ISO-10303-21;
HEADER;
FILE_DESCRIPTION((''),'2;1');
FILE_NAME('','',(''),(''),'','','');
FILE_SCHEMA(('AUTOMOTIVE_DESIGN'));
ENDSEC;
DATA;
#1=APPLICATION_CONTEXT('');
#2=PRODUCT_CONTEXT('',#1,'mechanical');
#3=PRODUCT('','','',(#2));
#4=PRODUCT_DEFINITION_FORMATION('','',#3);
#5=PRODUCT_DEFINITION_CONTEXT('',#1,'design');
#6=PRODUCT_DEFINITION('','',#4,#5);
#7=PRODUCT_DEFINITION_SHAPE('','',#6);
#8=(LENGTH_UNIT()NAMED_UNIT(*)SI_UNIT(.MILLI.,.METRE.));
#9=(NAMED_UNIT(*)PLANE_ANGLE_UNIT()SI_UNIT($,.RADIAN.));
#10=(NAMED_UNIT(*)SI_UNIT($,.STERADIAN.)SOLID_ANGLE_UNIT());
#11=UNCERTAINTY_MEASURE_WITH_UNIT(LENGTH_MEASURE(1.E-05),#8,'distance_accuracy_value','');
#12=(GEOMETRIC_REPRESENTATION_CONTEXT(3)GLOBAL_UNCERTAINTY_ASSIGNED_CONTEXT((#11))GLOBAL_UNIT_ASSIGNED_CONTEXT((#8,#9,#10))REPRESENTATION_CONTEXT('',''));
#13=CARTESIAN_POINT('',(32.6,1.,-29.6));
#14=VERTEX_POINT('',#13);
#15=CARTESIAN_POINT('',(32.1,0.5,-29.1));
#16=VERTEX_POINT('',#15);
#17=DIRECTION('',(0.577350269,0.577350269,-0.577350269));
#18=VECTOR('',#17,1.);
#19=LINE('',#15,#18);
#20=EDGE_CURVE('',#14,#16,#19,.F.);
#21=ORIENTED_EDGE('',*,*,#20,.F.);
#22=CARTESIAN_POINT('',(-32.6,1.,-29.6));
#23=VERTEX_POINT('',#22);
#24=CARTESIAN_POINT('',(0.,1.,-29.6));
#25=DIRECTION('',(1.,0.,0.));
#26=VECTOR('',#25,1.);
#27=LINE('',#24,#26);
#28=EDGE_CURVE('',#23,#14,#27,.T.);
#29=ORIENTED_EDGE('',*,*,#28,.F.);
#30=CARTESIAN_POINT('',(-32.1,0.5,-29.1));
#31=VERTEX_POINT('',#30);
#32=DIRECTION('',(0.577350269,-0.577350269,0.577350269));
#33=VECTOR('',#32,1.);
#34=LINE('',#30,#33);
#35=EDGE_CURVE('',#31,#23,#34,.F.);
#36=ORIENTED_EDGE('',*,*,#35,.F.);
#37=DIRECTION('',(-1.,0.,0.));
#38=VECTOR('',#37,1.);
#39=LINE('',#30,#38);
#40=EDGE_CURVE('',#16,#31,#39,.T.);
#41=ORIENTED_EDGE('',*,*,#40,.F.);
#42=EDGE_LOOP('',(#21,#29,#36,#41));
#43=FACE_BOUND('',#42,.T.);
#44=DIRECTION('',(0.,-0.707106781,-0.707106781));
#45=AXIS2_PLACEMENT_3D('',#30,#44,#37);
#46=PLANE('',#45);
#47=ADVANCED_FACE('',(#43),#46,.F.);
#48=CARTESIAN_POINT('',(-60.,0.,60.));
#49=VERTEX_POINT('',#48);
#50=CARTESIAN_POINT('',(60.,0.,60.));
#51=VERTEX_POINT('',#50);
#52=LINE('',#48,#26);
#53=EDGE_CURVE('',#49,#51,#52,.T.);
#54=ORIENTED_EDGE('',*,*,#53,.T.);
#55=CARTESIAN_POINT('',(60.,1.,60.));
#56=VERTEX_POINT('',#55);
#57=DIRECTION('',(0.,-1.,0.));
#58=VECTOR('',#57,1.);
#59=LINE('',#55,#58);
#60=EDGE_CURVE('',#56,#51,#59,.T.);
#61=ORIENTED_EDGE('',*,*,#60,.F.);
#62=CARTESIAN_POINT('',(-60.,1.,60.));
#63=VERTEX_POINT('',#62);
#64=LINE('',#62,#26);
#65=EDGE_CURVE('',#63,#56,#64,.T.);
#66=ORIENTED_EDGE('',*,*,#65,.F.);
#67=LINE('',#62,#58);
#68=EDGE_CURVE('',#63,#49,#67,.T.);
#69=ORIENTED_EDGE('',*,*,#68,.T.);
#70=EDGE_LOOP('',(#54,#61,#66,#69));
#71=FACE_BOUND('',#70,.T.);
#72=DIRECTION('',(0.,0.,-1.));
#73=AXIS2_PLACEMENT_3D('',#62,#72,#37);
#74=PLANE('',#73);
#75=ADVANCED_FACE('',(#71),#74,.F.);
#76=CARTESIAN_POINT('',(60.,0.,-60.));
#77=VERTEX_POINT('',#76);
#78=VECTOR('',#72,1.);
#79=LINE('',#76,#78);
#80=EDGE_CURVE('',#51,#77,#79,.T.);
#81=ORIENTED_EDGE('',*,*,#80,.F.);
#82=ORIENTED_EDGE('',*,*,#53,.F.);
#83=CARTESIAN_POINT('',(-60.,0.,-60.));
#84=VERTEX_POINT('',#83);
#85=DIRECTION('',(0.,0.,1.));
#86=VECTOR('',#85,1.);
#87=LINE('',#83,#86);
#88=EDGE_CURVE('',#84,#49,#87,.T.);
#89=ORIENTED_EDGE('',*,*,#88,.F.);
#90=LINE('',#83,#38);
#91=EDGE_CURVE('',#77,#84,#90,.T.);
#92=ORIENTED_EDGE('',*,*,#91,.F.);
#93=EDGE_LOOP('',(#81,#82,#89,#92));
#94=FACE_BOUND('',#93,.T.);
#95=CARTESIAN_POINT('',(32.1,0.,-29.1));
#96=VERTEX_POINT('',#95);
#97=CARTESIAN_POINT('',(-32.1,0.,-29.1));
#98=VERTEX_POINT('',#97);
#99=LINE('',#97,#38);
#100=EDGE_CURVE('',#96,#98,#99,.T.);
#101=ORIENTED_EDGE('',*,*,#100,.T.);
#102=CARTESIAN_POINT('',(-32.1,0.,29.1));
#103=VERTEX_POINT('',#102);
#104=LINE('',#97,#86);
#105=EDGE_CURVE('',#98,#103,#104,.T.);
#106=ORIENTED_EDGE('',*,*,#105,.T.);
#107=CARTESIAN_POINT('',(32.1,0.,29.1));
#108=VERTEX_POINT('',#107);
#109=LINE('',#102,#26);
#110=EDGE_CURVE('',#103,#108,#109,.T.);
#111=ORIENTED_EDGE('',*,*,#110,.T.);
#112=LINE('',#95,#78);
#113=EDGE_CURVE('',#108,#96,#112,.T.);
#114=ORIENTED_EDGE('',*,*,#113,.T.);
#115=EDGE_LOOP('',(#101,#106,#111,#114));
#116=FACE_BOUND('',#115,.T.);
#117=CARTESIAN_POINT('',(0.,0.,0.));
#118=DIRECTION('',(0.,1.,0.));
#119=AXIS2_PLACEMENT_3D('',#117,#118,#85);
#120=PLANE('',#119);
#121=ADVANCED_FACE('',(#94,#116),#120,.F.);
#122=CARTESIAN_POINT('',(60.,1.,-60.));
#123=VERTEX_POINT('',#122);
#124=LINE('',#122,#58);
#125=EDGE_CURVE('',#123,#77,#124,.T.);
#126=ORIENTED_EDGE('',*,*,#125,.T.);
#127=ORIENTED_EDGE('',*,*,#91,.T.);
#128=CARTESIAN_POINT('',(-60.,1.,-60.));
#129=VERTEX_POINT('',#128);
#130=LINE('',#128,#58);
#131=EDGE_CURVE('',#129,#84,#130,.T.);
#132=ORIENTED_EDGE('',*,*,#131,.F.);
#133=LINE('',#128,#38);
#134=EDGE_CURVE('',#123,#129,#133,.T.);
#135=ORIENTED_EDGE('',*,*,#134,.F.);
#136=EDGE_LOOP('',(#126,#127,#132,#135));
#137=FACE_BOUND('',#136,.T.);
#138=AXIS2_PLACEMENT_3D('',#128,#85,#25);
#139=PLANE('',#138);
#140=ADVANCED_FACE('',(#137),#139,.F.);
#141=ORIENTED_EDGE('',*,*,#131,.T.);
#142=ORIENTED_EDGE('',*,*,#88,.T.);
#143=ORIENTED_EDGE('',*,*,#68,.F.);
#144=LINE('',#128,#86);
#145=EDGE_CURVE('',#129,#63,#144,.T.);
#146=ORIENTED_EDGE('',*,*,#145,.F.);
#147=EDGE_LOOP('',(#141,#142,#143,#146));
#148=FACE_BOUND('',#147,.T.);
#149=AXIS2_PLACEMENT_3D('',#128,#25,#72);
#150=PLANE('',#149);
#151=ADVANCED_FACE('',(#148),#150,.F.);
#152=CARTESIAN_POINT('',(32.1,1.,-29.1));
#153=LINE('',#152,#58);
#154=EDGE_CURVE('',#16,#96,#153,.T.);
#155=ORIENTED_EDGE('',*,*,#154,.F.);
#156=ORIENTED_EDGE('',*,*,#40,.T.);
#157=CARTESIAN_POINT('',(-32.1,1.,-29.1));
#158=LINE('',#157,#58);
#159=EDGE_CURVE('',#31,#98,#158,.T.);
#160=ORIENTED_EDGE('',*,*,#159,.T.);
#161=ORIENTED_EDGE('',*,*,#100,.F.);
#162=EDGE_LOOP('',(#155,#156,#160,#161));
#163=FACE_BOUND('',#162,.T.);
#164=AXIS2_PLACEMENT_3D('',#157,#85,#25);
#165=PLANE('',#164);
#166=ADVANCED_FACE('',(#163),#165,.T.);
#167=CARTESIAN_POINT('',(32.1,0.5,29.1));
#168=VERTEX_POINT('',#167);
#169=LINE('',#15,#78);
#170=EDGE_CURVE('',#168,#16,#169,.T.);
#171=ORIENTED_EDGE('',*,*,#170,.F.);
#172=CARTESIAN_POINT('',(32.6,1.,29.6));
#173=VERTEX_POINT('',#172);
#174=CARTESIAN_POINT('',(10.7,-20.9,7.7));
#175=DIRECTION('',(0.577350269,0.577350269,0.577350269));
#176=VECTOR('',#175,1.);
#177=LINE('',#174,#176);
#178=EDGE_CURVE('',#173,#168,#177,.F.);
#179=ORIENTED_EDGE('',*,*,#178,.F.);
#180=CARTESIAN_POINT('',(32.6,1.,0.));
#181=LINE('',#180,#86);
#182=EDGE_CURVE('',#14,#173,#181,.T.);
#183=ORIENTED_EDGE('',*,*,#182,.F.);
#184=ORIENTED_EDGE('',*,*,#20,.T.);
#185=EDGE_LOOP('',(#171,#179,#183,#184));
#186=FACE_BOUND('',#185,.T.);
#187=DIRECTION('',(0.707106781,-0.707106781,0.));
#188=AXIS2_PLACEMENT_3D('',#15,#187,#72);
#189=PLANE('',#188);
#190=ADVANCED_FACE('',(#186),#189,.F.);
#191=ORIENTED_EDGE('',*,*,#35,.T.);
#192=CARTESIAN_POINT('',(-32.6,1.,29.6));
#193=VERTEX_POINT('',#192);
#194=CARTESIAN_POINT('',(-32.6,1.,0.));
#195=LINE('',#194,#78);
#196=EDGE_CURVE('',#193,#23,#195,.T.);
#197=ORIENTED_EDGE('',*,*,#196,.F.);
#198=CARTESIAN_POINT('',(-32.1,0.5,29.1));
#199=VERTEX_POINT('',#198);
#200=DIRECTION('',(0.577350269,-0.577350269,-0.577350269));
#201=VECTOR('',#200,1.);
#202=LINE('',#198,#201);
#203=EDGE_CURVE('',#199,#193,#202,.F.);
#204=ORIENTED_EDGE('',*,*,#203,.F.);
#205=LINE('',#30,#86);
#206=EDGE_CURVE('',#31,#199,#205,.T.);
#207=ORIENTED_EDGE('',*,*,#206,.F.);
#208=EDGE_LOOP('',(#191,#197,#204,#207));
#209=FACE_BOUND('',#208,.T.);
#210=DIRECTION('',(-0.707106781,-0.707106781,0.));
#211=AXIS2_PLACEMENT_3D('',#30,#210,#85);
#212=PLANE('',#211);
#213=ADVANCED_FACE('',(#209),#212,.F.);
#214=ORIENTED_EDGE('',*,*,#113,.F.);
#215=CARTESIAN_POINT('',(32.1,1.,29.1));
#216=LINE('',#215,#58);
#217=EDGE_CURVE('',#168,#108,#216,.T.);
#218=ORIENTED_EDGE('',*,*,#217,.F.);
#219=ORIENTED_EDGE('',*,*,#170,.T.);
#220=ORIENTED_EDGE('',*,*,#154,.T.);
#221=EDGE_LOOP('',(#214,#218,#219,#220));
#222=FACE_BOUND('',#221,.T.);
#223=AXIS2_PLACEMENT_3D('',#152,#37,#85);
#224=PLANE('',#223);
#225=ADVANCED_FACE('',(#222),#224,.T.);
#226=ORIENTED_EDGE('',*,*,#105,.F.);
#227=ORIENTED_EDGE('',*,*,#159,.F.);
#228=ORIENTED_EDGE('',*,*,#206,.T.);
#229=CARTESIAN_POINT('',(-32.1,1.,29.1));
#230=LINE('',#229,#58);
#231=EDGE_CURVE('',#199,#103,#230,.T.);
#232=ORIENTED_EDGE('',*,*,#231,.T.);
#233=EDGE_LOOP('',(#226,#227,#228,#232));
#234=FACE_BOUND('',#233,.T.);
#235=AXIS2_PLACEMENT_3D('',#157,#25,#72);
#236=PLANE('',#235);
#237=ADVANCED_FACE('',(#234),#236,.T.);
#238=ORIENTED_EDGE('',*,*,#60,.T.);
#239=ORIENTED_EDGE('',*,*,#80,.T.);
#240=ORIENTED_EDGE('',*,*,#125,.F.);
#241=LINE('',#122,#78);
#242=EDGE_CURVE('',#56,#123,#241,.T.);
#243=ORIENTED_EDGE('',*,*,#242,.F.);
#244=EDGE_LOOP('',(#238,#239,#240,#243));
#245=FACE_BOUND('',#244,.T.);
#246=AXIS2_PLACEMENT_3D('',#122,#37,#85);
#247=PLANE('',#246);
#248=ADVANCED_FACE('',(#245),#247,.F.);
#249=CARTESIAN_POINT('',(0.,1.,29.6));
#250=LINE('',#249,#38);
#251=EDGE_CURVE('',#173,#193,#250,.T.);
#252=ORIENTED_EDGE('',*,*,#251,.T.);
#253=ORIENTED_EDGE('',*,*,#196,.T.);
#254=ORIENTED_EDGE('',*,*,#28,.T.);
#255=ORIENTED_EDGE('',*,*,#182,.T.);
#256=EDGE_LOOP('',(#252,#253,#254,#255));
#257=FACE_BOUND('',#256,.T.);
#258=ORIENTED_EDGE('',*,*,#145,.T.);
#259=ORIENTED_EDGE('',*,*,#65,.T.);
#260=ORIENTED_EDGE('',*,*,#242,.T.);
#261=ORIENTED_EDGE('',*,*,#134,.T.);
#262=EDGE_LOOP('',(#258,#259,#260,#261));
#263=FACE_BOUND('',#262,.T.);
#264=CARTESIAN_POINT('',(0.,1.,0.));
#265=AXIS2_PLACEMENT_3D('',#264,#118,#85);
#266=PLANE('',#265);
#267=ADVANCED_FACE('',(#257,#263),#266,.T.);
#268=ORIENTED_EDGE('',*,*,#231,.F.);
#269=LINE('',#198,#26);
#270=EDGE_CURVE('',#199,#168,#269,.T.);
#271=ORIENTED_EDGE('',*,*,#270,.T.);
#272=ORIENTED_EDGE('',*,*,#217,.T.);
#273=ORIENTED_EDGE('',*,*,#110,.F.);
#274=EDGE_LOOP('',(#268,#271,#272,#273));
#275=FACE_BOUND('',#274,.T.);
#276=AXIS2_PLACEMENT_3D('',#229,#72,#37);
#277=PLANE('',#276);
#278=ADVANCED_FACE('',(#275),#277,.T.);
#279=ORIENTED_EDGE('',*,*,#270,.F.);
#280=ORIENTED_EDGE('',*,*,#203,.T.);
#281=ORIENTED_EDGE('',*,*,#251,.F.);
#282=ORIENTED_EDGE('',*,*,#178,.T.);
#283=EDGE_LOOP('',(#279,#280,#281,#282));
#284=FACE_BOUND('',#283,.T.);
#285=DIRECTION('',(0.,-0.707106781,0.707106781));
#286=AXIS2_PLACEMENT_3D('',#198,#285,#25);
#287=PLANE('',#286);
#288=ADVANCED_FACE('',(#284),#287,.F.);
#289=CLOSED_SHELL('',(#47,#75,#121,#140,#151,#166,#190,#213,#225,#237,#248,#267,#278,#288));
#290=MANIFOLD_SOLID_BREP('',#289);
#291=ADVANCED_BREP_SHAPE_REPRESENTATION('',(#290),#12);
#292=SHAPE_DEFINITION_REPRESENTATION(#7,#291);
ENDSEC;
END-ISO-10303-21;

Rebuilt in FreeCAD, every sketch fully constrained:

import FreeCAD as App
import Part
import Sketcher

V = App.Vector
Q = App.Units.Quantity


def edges_at(feature, points):
    """Names of the edges that pass closest to the given points."""
    edges = feature.Shape.Edges
    near = lambda p: min(range(len(edges)), key=lambda i: edges[i].distToShape(Part.Vertex(*p))[0])
    return sorted({f"Edge{near(p) + 1}" for p in points})

doc = App.newDocument("Part")
params = doc.addObject("Spreadsheet::Sheet", "Params")
for row, (alias, value) in enumerate([
    ("sketch1_width", "120 mm"),
    ("sketch1_width2", "64.2 mm"),
    ("sketch1_height", "58.2 mm"),
    ("pad1_length", "1 mm"),
    ("chamfer_size", "0.5 mm"),
], start=1):
    params.set(f"A{row}", alias)
    params.set(f"B{row}", "=" + value)
    params.setAlias(f"B{row}", alias)

body = doc.addObject("PartDesign::Body", "Body")

# Sketch on XZ plane
sketch1 = body.newObject("Sketcher::SketchObject", "Sketch")
sketch1.AttachmentSupport = (doc.getObject("XZ_Plane"), [""])
sketch1.MapMode = "FlatFace"
sketch1.addGeometry([
    Part.LineSegment(V(-60, -60, 0), V(-60, 60, 0)),  # 0
    Part.LineSegment(V(-60, 60, 0), V(60, 60, 0)),  # 1
    Part.LineSegment(V(60, 60, 0), V(60, -60, 0)),  # 2
    Part.LineSegment(V(60, -60, 0), V(-60, -60, 0)),  # 3
    Part.LineSegment(V(32.1, 29.1, 0), V(-32.1, 29.1, 0)),  # 4
    Part.LineSegment(V(-32.1, 29.1, 0), V(-32.1, -29.1, 0)),  # 5
    Part.LineSegment(V(-32.1, -29.1, 0), V(32.1, -29.1, 0)),  # 6
    Part.LineSegment(V(32.1, -29.1, 0), V(32.1, 29.1, 0)),  # 7
], False)
sketch1.addConstraint([
    Sketcher.Constraint("Coincident", 0, 2, 1, 1),
    Sketcher.Constraint("Coincident", 1, 2, 2, 1),
    Sketcher.Constraint("Coincident", 2, 2, 3, 1),
    Sketcher.Constraint("Coincident", 3, 2, 0, 1),
    Sketcher.Constraint("Coincident", 4, 2, 5, 1),
    Sketcher.Constraint("Coincident", 5, 2, 6, 1),
    Sketcher.Constraint("Coincident", 6, 2, 7, 1),
    Sketcher.Constraint("Coincident", 7, 2, 4, 1),
    Sketcher.Constraint("Vertical", 0),
    Sketcher.Constraint("Horizontal", 1),
    Sketcher.Constraint("Vertical", 2),
    Sketcher.Constraint("Horizontal", 3),
    Sketcher.Constraint("Horizontal", 4),
    Sketcher.Constraint("Vertical", 5),
    Sketcher.Constraint("Horizontal", 6),
    Sketcher.Constraint("Vertical", 7),
    Sketcher.Constraint("Symmetric", 0, 2, 2, 2, -1, 1),
    Sketcher.Constraint("Symmetric", 4, 2, 6, 2, -1, 1),
    Sketcher.Constraint("Equal", 3, 0),
    Sketcher.Constraint("DistanceX", 1, 1, 1, 2, Q("120 mm")),
    Sketcher.Constraint("DistanceX", 4, 2, 4, 1, Q("64.2 mm")),
    Sketcher.Constraint("DistanceY", 5, 2, 5, 1, Q("58.2 mm")),
])
sketch1.setExpression("Constraints[19]", "Params.sketch1_width")
sketch1.setExpression("Constraints[20]", "Params.sketch1_width2")
sketch1.setExpression("Constraints[21]", "Params.sketch1_height")
pad1 = body.newObject("PartDesign::Pad", "Pad")
pad1.Profile = sketch1
pad1.setExpression("Length", "Params.pad1_length")
pad1.Reversed = True
doc.recompute()

chamfer = body.newObject("PartDesign::Chamfer", "Chamfer")
chamfer.Base = (pad1, edges_at(pad1, [
    (32.1, 1, 0),
    (0, 1, -29.1),
    (-32.1, 1, 0),
    (0, 1, 29.1),
]))
chamfer.setExpression("Size", "Params.chamfer_size")

doc.recompute()
